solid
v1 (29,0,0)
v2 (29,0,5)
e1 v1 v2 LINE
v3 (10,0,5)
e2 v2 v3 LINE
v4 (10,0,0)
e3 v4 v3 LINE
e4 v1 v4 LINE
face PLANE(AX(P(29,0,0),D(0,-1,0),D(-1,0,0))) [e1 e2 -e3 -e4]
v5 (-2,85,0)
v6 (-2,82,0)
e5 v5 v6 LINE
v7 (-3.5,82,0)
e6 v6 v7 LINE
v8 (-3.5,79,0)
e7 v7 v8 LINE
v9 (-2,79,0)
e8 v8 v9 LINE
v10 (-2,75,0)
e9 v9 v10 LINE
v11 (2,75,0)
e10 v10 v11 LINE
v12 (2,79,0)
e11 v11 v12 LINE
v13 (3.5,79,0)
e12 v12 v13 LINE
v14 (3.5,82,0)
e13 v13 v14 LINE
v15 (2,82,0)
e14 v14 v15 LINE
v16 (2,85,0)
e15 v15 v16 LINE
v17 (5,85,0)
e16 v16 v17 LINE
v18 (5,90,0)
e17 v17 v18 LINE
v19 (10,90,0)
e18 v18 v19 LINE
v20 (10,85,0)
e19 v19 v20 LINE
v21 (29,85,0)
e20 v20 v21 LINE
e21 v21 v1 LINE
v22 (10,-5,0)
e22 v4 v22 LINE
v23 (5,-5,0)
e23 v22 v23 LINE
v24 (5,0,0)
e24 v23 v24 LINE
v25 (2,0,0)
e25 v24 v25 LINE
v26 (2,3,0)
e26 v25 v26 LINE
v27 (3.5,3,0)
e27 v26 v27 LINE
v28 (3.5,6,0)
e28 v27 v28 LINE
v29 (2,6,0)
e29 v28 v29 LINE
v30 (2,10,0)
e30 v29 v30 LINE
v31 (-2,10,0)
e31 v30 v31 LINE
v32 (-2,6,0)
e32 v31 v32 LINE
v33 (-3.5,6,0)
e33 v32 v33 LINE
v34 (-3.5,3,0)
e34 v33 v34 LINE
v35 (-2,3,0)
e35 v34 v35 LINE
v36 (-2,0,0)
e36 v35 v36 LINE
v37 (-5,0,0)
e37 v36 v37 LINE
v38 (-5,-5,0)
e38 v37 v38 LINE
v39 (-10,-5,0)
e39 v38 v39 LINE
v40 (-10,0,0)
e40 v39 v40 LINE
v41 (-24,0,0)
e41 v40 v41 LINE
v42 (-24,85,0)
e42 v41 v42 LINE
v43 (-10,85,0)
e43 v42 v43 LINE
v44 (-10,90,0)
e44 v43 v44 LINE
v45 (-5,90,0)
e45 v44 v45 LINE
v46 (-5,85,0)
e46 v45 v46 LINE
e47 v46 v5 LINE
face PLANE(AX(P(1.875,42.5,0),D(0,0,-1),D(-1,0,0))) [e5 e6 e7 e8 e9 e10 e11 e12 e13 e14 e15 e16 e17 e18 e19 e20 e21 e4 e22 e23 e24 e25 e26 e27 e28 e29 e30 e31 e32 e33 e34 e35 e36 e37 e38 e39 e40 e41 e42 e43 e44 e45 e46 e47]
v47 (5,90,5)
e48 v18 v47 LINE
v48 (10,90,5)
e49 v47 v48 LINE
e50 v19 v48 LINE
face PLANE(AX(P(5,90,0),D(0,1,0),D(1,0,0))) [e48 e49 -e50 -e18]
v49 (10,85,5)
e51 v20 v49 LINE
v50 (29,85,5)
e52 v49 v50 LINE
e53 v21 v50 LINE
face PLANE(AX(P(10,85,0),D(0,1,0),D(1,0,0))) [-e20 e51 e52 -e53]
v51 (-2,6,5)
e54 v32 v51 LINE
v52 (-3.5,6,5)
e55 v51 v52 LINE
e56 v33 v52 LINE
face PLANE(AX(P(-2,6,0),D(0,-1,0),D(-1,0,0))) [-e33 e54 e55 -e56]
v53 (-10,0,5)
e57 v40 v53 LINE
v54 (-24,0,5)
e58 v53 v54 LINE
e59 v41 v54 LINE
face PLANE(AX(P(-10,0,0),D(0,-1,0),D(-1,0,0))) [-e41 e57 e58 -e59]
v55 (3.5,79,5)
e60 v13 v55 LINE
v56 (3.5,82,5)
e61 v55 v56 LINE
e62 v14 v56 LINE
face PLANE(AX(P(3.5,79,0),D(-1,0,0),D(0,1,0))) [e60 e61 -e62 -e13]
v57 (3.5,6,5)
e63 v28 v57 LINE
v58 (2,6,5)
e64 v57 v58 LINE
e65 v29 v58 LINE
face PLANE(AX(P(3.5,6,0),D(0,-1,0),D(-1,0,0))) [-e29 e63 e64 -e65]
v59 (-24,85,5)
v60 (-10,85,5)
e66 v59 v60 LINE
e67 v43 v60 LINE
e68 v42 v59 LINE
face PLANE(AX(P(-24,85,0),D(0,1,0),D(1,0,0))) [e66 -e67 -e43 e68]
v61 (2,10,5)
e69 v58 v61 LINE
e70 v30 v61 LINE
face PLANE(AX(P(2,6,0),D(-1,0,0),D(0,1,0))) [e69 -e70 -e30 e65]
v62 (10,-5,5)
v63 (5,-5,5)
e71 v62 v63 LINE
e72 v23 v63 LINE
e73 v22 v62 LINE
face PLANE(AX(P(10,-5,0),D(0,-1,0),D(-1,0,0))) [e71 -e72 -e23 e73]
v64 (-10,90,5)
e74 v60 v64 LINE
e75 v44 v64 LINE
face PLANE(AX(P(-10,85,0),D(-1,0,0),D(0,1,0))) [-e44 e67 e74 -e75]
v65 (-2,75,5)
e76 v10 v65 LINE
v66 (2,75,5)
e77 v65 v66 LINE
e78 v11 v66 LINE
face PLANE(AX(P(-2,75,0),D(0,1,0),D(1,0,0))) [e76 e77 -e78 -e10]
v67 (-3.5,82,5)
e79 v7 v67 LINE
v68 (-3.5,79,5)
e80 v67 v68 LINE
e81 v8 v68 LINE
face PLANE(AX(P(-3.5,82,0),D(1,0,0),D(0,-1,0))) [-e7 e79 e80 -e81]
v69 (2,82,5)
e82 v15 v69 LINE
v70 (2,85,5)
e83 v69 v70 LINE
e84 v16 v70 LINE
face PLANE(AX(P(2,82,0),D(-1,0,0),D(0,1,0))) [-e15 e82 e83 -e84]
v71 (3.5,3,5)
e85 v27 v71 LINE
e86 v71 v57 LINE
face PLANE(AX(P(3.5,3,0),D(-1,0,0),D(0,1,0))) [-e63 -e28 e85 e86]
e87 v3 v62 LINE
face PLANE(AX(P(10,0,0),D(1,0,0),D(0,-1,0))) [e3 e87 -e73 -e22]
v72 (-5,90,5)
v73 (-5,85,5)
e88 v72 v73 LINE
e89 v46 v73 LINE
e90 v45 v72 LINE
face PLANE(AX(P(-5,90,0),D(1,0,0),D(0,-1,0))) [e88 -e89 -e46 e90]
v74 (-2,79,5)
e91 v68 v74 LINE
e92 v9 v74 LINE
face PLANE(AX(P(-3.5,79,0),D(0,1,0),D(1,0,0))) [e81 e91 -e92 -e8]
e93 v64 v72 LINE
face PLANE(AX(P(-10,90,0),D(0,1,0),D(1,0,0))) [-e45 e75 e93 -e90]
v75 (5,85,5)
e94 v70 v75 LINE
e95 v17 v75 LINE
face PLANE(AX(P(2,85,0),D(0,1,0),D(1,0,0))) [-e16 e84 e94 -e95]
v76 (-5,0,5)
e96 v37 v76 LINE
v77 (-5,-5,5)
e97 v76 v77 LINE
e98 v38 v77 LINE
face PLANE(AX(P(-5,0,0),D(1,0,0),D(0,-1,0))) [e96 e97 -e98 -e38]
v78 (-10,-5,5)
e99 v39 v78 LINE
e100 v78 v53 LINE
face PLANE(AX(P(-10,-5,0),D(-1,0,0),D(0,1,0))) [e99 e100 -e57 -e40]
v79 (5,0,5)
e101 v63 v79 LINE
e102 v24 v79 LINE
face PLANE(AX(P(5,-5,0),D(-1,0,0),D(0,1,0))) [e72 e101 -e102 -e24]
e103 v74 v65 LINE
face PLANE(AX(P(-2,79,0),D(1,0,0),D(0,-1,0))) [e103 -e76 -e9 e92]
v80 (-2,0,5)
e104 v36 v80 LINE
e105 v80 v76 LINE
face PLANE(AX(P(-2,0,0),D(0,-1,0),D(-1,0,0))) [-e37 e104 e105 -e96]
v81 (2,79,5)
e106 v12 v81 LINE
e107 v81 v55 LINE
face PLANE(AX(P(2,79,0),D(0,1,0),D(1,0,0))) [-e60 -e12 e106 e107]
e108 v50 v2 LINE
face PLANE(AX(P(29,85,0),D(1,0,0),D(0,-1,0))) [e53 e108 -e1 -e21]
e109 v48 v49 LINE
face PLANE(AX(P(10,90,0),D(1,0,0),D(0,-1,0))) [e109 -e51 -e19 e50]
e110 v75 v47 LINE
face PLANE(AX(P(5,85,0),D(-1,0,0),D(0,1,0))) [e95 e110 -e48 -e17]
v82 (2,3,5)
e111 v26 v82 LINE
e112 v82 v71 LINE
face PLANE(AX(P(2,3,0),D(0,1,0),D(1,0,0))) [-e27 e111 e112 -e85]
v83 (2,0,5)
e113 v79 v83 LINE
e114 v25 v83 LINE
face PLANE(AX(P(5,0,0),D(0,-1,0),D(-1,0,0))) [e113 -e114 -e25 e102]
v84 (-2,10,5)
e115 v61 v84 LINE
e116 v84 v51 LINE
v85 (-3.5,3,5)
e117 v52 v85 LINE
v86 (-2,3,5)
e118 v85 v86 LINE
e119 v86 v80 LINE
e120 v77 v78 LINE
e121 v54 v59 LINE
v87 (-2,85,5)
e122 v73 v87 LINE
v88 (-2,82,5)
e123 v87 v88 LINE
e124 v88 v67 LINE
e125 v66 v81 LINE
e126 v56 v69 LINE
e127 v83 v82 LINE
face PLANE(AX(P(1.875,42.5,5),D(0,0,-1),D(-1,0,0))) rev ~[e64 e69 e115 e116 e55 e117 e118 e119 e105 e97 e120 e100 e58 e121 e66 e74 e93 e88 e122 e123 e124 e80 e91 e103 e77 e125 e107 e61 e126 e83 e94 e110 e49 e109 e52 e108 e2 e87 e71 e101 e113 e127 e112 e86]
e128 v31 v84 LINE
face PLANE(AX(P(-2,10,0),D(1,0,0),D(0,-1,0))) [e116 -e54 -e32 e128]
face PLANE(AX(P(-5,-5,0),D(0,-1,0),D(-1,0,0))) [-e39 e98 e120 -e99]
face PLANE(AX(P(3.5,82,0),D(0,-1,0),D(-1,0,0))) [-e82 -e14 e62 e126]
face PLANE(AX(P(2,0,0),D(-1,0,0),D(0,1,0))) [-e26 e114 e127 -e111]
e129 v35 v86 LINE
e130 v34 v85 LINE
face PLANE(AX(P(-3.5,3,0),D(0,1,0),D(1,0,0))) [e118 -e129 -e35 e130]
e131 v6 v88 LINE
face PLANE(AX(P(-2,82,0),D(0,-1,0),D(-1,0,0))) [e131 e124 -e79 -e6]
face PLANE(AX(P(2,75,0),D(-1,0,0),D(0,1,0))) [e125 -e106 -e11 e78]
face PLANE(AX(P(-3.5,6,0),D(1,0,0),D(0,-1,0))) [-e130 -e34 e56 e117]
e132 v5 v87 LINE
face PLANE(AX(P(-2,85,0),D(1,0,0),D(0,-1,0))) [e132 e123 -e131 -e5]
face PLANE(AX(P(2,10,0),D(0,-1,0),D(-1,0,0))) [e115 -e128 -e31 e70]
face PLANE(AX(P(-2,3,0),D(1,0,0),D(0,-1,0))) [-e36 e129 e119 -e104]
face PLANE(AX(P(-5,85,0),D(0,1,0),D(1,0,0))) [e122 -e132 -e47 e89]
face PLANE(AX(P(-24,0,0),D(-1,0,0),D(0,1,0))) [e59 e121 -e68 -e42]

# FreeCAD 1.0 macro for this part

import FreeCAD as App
import Part
import Sketcher

V = App.Vector


def add_polygon(sketch, points):
    """Adds a closed chain of lines whose ends are joined by coincident constraints."""
    first, n = sketch.GeometryCount, len(points)
    for a, b in zip(points, points[1:] + points[:1]):
        sketch.addGeometry(Part.LineSegment(App.Vector(*a, 0), App.Vector(*b, 0)), False)
    for i in range(n):
        sketch.addConstraint(Sketcher.Constraint("Coincident", first + i, 2, first + (i + 1) % n, 1))

doc = App.newDocument("Part")
params = doc.addObject("Spreadsheet::Sheet", "Params")
for row, (alias, value) in enumerate([
    ("sketch1_width", "3 mm"),
    ("sketch1_width2", "5 mm"),
    ("sketch1_width3", "14 mm"),
    ("sketch1_width4", "4 mm"),
    ("sketch1_width5", "19 mm"),
    ("pad1_length", "5 mm"),
], start=1):
    params.set(f"A{row}", alias)
    params.set(f"B{row}", "=" + value)
    params.setAlias(f"B{row}", alias)

body = doc.addObject("PartDesign::Body", "Body")

sketch1 = body.newObject("Sketcher::SketchObject", "Sketch")
sketch1.AttachmentSupport = (doc.getObject("XY_Plane"), [""])
sketch1.MapMode = "FlatFace"
add_polygon(sketch1, [(-3.5, 82), (-2, 82), (-2, 85), (-5, 85), (-5, 90), (-10, 90), (-10, 85), (-24, 85), (-24, 0), (-10, 0), (-10, -5), (-5, -5), (-5, 0), (-2, 0), (-2, 3), (-3.5, 3), (-3.5, 6), (-2, 6), (-2, 10), (2, 10), (2, 6), (3.5, 6), (3.5, 3), (2, 3), (2, 0), (5, 0), (5, -5), (10, -5), (10, 0), (29, 0), (29, 85), (10, 85), (10, 90), (5, 90), (5, 85), (2, 85), (2, 82), (3.5, 82), (3.5, 79), (2, 79), (2, 75), (-2, 75), (-2, 79), (-3.5, 79)])
sketch1.addConstraint([
    Sketcher.Constraint("Horizontal", 0),
    Sketcher.Constraint("Vertical", 1),
    Sketcher.Constraint("Horizontal", 2),
    Sketcher.Constraint("Vertical", 3),
    Sketcher.Constraint("Horizontal", 4),
    Sketcher.Constraint("Vertical", 5),
    Sketcher.Constraint("Horizontal", 6),
    Sketcher.Constraint("Vertical", 7),
    Sketcher.Constraint("Horizontal", 8),
    Sketcher.Constraint("Vertical", 9),
    Sketcher.Constraint("Horizontal", 10),
    Sketcher.Constraint("Vertical", 11),
    Sketcher.Constraint("Horizontal", 12),
    Sketcher.Constraint("Vertical", 13),
    Sketcher.Constraint("Horizontal", 14),
    Sketcher.Constraint("Vertical", 15),
    Sketcher.Constraint("Horizontal", 16),
    Sketcher.Constraint("Vertical", 17),
    Sketcher.Constraint("Horizontal", 18),
    Sketcher.Constraint("Vertical", 19),
    Sketcher.Constraint("Horizontal", 20),
    Sketcher.Constraint("Vertical", 21),
    Sketcher.Constraint("Horizontal", 22),
    Sketcher.Constraint("Vertical", 23),
    Sketcher.Constraint("Horizontal", 24),
    Sketcher.Constraint("Vertical", 25),
    Sketcher.Constraint("Horizontal", 26),
    Sketcher.Constraint("Vertical", 27),
    Sketcher.Constraint("Horizontal", 28),
    Sketcher.Constraint("Vertical", 29),
    Sketcher.Constraint("Horizontal", 30),
    Sketcher.Constraint("Vertical", 31),
    Sketcher.Constraint("Horizontal", 32),
    Sketcher.Constraint("Vertical", 33),
    Sketcher.Constraint("Horizontal", 34),
    Sketcher.Constraint("Vertical", 35),
    Sketcher.Constraint("Horizontal", 36),
    Sketcher.Constraint("Vertical", 37),
    Sketcher.Constraint("Horizontal", 38),
    Sketcher.Constraint("Vertical", 39),
    Sketcher.Constraint("Horizontal", 40),
    Sketcher.Constraint("Vertical", 41),
    Sketcher.Constraint("Horizontal", 42),
    Sketcher.Constraint("Vertical", 43),
    Sketcher.Constraint("Symmetric", 12, 2, 23, 2, -1, 1),
    Sketcher.Constraint("Symmetric", 8, 2, 27, 2, -1, 1),
    Sketcher.Constraint("Symmetric", 16, 2, 19, 2, -2),
    Sketcher.Constraint("Symmetric", 14, 2, 21, 2, -2),
    Sketcher.Constraint("Symmetric", 11, 2, 24, 2, -2),
    Sketcher.Constraint("Symmetric", 5, 2, 30, 2, -2),
    Sketcher.Constraint("Symmetric", 3, 2, 32, 2, -2),
    Sketcher.Constraint("Symmetric", 1, 2, 34, 2, -2),
    Sketcher.Constraint("Symmetric", 38, 2, 41, 2, -2),
    Sketcher.Constraint("Symmetric", 36, 2, 43, 2, -2),
    Sketcher.Constraint("PointOnObject", 7, 2, -1),
    Sketcher.Constraint("Horizontal", 2, 2, 5, 2),
    Sketcher.Constraint("Horizontal", 10, 2, 25, 2),
    Sketcher.Constraint("Vertical", 5, 2, 8, 2),
    Sketcher.Constraint("Vertical", 3, 2, 10, 2),
    Sketcher.Constraint("Vertical", 1, 2, 12, 2),
    Sketcher.Constraint("Vertical", 13, 2, 16, 2),
    Sketcher.Constraint("Vertical", 21, 2, 36, 2),
    Sketcher.Constraint("Vertical", 35, 2, 38, 2),
    Sketcher.Constraint("Equal", 34, 1),
    Sketcher.Constraint("Equal", 32, 3),
    Sketcher.Constraint("Equal", 5, 9),
    Sketcher.Constraint("Equal", 1, 13),
    Sketcher.Constraint("Equal", 13, 15),
    Sketcher.Constraint("Equal", 40, 17),
    Sketcher.Constraint("Equal", 35, 37),
    Sketcher.Constraint("Equal", 19, 39),
    Sketcher.Constraint("DistanceX", 2, 2, 2, 1, 3.0),
    Sketcher.Constraint("DistanceX", 4, 2, 4, 1, 5.0),
    Sketcher.Constraint("DistanceX", 6, 2, 6, 1, 14.0),
    Sketcher.Constraint("DistanceX", 18, 1, 18, 2, 4.0),
    Sketcher.Constraint("DistanceX", 28, 1, 28, 2, 19.0),
    Sketcher.Constraint("DistanceY", 7, 2, 7, 1, 85.0),
    Sketcher.Constraint("DistanceX", 0, 1, 0, 2, 1.5),
])
sketch1.setExpression("Constraints[115]", "Params.sketch1_width")
sketch1.setExpression("Constraints[116]", "Params.sketch1_width2")
sketch1.setExpression("Constraints[117]", "Params.sketch1_width3")
sketch1.setExpression("Constraints[118]", "Params.sketch1_width4")
sketch1.setExpression("Constraints[119]", "Params.sketch1_width5")
pad1 = body.newObject("PartDesign::Pad", "Pad")
pad1.Profile = sketch1
pad1.setExpression("Length", "Params.pad1_length")

doc.recompute()
